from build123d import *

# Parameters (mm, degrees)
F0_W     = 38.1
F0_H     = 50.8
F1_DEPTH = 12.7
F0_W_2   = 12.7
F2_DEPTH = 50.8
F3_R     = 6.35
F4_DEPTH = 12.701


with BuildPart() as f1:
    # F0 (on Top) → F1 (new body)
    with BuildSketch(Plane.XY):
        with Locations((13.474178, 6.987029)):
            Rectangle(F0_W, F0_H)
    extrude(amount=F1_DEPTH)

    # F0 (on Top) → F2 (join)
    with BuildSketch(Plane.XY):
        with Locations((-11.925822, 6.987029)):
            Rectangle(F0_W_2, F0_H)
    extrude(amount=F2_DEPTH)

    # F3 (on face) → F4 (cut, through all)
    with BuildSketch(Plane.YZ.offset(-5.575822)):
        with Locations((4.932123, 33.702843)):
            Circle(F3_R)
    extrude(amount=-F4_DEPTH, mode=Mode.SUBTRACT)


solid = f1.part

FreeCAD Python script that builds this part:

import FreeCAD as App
import Part
import Sketcher
Q = App.Units.Quantity

doc = App.newDocument("Part")
body = doc.addObject("PartDesign::Body", "Body")

# Sketch on XY plane
sketch1 = doc.addObject("Sketcher::SketchObject", "Sketch")
body.addObject(sketch1)
sketch1.AttachmentSupport = (doc.XY_Plane, [""])
sketch1.MapMode = "FlatFace"
sketch1.addGeometry([
    Part.LineSegment(App.Vector(-6, 32, 0), App.Vector(-6, -18, 0)),
    Part.LineSegment(App.Vector(-6, -18, 0), App.Vector(33, -18, 0)),
    Part.LineSegment(App.Vector(33, -18, 0), App.Vector(33, 32, 0)),
    Part.LineSegment(App.Vector(33, 32, 0), App.Vector(-6, 32, 0)),
], False)
sketch1.addConstraint([
    Sketcher.Constraint("Coincident", 0, 2, 1, 1),
    Sketcher.Constraint("Coincident", 1, 2, 2, 1),
    Sketcher.Constraint("Coincident", 2, 2, 3, 1),
    Sketcher.Constraint("Coincident", 3, 2, 0, 1),
    Sketcher.Constraint("Vertical", 0),
    Sketcher.Constraint("Horizontal", 1),
    Sketcher.Constraint("Vertical", 2),
    Sketcher.Constraint("Horizontal", 3),
    Sketcher.Constraint("DistanceY", 0, 2, 0, 1, Q("2 in")),
    Sketcher.Constraint("DistanceX", 1, 1, 1, 2, Q("1.5 in")),
    Sketcher.Constraint("DistanceX", 0, 2, -1, 1, Q("5.575822 mm")),
    Sketcher.Constraint("DistanceY", 0, 2, -1, 1, Q("18.412971 mm")),
])
pad1 = doc.addObject("PartDesign::Pad", "Pad")
body.addObject(pad1)
pad1.Profile = sketch1
pad1.Length = Q("0.5 in")

# Sketch on XY plane
sketch2 = doc.addObject("Sketcher::SketchObject", "Sketch001")
body.addObject(sketch2)
sketch2.AttachmentSupport = (doc.XY_Plane, [""])
sketch2.MapMode = "FlatFace"
sketch2.addGeometry([
    Part.LineSegment(App.Vector(-18, 32, 0), App.Vector(-18, -18, 0)),
    Part.LineSegment(App.Vector(-18, -18, 0), App.Vector(-6, -18, 0)),
    Part.LineSegment(App.Vector(-6, -18, 0), App.Vector(-6, 32, 0)),
    Part.LineSegment(App.Vector(-6, 32, 0), App.Vector(-18, 32, 0)),
], False)
sketch2.addConstraint([
    Sketcher.Constraint("Coincident", 0, 2, 1, 1),
    Sketcher.Constraint("Coincident", 1, 2, 2, 1),
    Sketcher.Constraint("Coincident", 2, 2, 3, 1),
    Sketcher.Constraint("Coincident", 3, 2, 0, 1),
    Sketcher.Constraint("Vertical", 0),
    Sketcher.Constraint("Horizontal", 1),
    Sketcher.Constraint("Vertical", 2),
    Sketcher.Constraint("Horizontal", 3),
    Sketcher.Constraint("DistanceY", 0, 2, 0, 1, Q("2 in")),
    Sketcher.Constraint("DistanceX", 1, 1, 1, 2, Q("0.5 in")),
    Sketcher.Constraint("DistanceY", 0, 2, -1, 1, Q("18.412971 mm")),
    Sketcher.Constraint("DistanceX", 1, 2, -1, 1, Q("5.575822 mm")),
])
pad2 = doc.addObject("PartDesign::Pad", "Pad001")
body.addObject(pad2)
pad2.Profile = sketch2
pad2.Length = Q("2 in")

# Sketch on YZ plane
sketch3 = doc.addObject("Sketcher::SketchObject", "Sketch002")
body.addObject(sketch3)
sketch3.AttachmentSupport = (doc.YZ_Plane, [""])
sketch3.MapMode = "FlatFace"
sketch3.AttachmentOffset = App.Placement(App.Vector(0, 0, -5.575822), App.Rotation())
sketch3.addGeometry(Part.Circle(App.Vector(5, 34, 0), App.Vector(0, 0, 1), 6), False)
sketch3.addConstraint([
    Sketcher.Constraint("Diameter", 0, Q("0.5 in")),
    Sketcher.Constraint("DistanceX", -1, 1, 0, 3, Q("4.932123 mm")),
    Sketcher.Constraint("DistanceY", -1, 1, 0, 3, Q("33.702843 mm")),
])
pocket1 = doc.addObject("PartDesign::Pocket", "Pocket")
body.addObject(pocket1)
pocket1.Profile = sketch3
pocket1.Type = "ThroughAll"

doc.recompute()
